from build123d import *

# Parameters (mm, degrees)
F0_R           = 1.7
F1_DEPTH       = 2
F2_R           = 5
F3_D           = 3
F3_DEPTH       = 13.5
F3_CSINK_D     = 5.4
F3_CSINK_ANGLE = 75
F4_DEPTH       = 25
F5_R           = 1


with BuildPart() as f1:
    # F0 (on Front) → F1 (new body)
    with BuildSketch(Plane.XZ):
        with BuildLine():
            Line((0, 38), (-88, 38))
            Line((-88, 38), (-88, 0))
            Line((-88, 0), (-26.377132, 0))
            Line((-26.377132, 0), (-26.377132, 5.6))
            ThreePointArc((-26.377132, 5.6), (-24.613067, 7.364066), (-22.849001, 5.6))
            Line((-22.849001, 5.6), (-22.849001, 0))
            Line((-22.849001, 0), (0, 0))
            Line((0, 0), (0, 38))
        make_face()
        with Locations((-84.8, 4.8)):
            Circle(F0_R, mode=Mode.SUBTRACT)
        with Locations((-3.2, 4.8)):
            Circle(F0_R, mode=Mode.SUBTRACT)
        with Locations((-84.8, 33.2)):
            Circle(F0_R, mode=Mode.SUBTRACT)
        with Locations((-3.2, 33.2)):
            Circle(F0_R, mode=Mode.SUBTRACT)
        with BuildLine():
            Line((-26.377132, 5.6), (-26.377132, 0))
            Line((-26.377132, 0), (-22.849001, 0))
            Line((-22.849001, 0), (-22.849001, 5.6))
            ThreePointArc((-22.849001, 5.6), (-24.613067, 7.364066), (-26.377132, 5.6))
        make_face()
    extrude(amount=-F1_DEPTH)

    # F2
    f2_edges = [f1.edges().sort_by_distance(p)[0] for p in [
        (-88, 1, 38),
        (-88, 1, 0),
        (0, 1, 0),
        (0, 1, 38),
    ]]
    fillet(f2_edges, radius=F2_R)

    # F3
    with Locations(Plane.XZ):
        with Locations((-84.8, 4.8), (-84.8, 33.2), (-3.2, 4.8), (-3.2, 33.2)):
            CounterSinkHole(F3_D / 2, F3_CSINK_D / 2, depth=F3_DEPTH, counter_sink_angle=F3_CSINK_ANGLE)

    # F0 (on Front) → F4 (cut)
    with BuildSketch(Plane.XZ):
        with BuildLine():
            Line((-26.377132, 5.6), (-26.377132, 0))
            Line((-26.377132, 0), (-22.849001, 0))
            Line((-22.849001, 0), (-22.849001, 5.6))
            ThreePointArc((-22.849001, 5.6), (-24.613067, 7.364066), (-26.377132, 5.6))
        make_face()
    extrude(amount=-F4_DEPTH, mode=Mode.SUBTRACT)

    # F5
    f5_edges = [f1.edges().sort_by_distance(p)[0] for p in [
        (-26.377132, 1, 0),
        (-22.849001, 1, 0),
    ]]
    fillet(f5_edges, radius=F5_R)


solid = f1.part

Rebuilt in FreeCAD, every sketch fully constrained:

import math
import FreeCAD as App
import Part
import Sketcher
from FreeCAD import Vector


def edges_at(feature, points):
    """Names of the edges that pass closest to the given points."""
    edges = feature.Shape.Edges
    near = lambda p: min(range(len(edges)), key=lambda i: edges[i].distToShape(Part.Vertex(*p))[0])
    return sorted({f"Edge{near(p) + 1}" for p in points})

doc = App.newDocument("Part")
params = doc.addObject("Spreadsheet::Sheet", "Params")
for row, (alias, value) in enumerate([
    ("sketch1_diameter", "3.4 mm"),
    ("sketch1_width", "88 mm"),
    ("sketch1_height", "38 mm"),
    ("pad1_length", "2 mm"),
    ("fillet_radius", "5 mm"),
    ("sketch2_diameter", "3 mm"),
    ("hole_diameter", "3 mm"),
    ("hole_depth", "13.5 mm"),
    ("hole_csink_diameter", "5.4 mm"),
    ("sketch3_height", "5.6 mm"),
    ("pocket1_length", "25 mm"),
    ("fillet2_radius", "1 mm"),
], start=1):
    params.set(f"A{row}", alias)
    params.set(f"B{row}", "=" + value)
    params.setAlias(f"B{row}", alias)

body = doc.addObject("PartDesign::Body", "Body")

sketch1 = body.newObject("Sketcher::SketchObject", "Sketch")
sketch1.AttachmentSupport = (doc.getObject("XZ_Plane"), [""])
sketch1.MapMode = "FlatFace"
sketch1.addGeometry([
    Part.LineSegment(Vector(0, 38, 0), Vector(-88, 38, 0)),
    Part.LineSegment(Vector(-88, 38, 0), Vector(-88, 0, 0)),
    Part.LineSegment(Vector(-88, 0, 0), Vector(0, 0, 0)),
    Part.LineSegment(Vector(0, 0, 0), Vector(0, 38, 0)),
    Part.Circle(Vector(-84.8, 4.8, 0), Vector(0, 0, 1), 1.7),
    Part.Circle(Vector(-3.2, 4.8, 0), Vector(0, 0, 1), 1.7),
    Part.Circle(Vector(-84.8, 33.2, 0), Vector(0, 0, 1), 1.7),
    Part.Circle(Vector(-3.2, 33.2, 0), Vector(0, 0, 1), 1.7),
], False)
sketch1.addConstraint([
    Sketcher.Constraint("Coincident", 0, 2, 1, 1),
    Sketcher.Constraint("Coincident", 1, 2, 2, 1),
    Sketcher.Constraint("Coincident", 2, 2, 3, 1),
    Sketcher.Constraint("Coincident", 3, 2, 0, 1),
    Sketcher.Constraint("Horizontal", 0),
    Sketcher.Constraint("Vertical", 1),
    Sketcher.Constraint("Horizontal", 2),
    Sketcher.Constraint("Vertical", 3),
    Sketcher.Constraint("Coincident", 2, 2, -1, 1),
    Sketcher.Constraint("Equal", 4, 5),
    Sketcher.Constraint("Equal", 5, 6),
    Sketcher.Constraint("Equal", 6, 7),
    Sketcher.Constraint("Horizontal", 4, 3, 5, 3),
    Sketcher.Constraint("Horizontal", 6, 3, 7, 3),
    Sketcher.Constraint("Vertical", 4, 3, 6, 3),
    Sketcher.Constraint("Vertical", 5, 3, 7, 3),
    Sketcher.Constraint("Diameter", 4, 3.4),
    Sketcher.Constraint("DistanceX", 0, 2, 0, 1, 88.0),
    Sketcher.Constraint("DistanceY", 1, 2, 1, 1, 38.0),
    Sketcher.Constraint("DistanceX", 4, 3, -1, 1, 84.8),
    Sketcher.Constraint("DistanceY", -1, 1, 4, 3, 4.8),
    Sketcher.Constraint("DistanceX", 5, 3, -1, 1, 3.2),
    Sketcher.Constraint("DistanceY", -1, 1, 6, 3, 33.2),
])
sketch1.setExpression("Constraints[16]", "Params.sketch1_diameter")
sketch1.setExpression("Constraints[17]", "Params.sketch1_width")
sketch1.setExpression("Constraints[18]", "Params.sketch1_height")
pad1 = body.newObject("PartDesign::Pad", "Pad")
pad1.Profile = sketch1
pad1.setExpression("Length", "Params.pad1_length")
pad1.Reversed = True
doc.recompute()

fillet = body.newObject("PartDesign::Fillet", "Fillet")
fillet.Base = (pad1, edges_at(pad1, [
    (-88, 1, 38),
    (-88, 1, 0),
    (0, 1, 0),
    (0, 1, 38),
]))
fillet.setExpression("Radius", "Params.fillet_radius")

sketch2 = body.newObject("Sketcher::SketchObject", "Sketch001")
sketch2.AttachmentSupport = (doc.getObject("XZ_Plane"), [""])
sketch2.MapMode = "FlatFace"
sketch2.addGeometry([
    Part.Circle(Vector(-84.8, 4.8, 0), Vector(0, 0, 1), 1.5),
    Part.Circle(Vector(-84.8, 33.2, 0), Vector(0, 0, 1), 1.5),
    Part.Circle(Vector(-3.2, 4.8, 0), Vector(0, 0, 1), 1.5),
    Part.Circle(Vector(-3.2, 33.2, 0), Vector(0, 0, 1), 1.5),
], False)
sketch2.addConstraint([
    Sketcher.Constraint("Equal", 0, 1),
    Sketcher.Constraint("Equal", 1, 2),
    Sketcher.Constraint("Equal", 2, 3),
    Sketcher.Constraint("Horizontal", 0, 3, 2, 3),
    Sketcher.Constraint("Horizontal", 1, 3, 3, 3),
    Sketcher.Constraint("Vertical", 0, 3, 1, 3),
    Sketcher.Constraint("Vertical", 2, 3, 3, 3),
    Sketcher.Constraint("Diameter", 0, 3.0),
    Sketcher.Constraint("DistanceX", 0, 3, -1, 1, 84.8),
    Sketcher.Constraint("DistanceY", -1, 1, 0, 3, 4.8),
    Sketcher.Constraint("DistanceY", -1, 1, 1, 3, 33.2),
    Sketcher.Constraint("DistanceX", 2, 3, -1, 1, 3.2),
])
sketch2.setExpression("Constraints[7]", "Params.sketch2_diameter")
doc.recompute()
hole = body.newObject("PartDesign::Hole", "Hole")
hole.Profile = sketch2
hole.ThreadType = "None"
hole.setExpression("Diameter", "Params.hole_diameter")
hole.DepthType = "Dimension"
hole.setExpression("Depth", "Params.hole_depth")
hole.DrillPoint = "Flat"
hole.HoleCutType = "Countersink"
hole.setExpression("HoleCutDiameter", "Params.hole_csink_diameter")
hole.HoleCutCountersinkAngle = 75

sketch3 = body.newObject("Sketcher::SketchObject", "Sketch002")
sketch3.AttachmentSupport = (doc.getObject("XZ_Plane"), [""])
sketch3.MapMode = "FlatFace"
sketch3.addGeometry([
    Part.LineSegment(Vector(-26.4, 5.6, 0), Vector(-26.4, 0, 0)),
    Part.LineSegment(Vector(-26.4, 0, 0), Vector(-22.8, 0, 0)),
    Part.LineSegment(Vector(-22.8, 0, 0), Vector(-22.8, 5.6, 0)),
    Part.ArcOfCircle(Part.Circle(Vector(-24.6, 5.6, 0), Vector(0, 0, 1), 1.8), math.radians(0), math.radians(180)),
], False)
sketch3.addConstraint([
    Sketcher.Constraint("Coincident", 0, 2, 1, 1),
    Sketcher.Constraint("Coincident", 1, 2, 2, 1),
    Sketcher.Constraint("Tangent", 2, 2, 3, 1),
    Sketcher.Constraint("Tangent", 3, 2, 0, 1),
    Sketcher.Constraint("Vertical", 0),
    Sketcher.Constraint("Horizontal", 1),
    Sketcher.Constraint("Vertical", 2),
    Sketcher.Constraint("PointOnObject", 0, 2, -1),
    Sketcher.Constraint("DistanceY", 0, 2, 0, 1, 5.6),
    Sketcher.Constraint("DistanceX", 1, 2, -1, 1, 22.849001),
    Sketcher.Constraint("Radius", 3, 1.764066),
])
sketch3.setExpression("Constraints[8]", "Params.sketch3_height")
pocket1 = body.newObject("PartDesign::Pocket", "Pocket")
pocket1.Profile = sketch3
pocket1.setExpression("Length", "Params.pocket1_length")
doc.recompute()

fillet2 = body.newObject("PartDesign::Fillet", "Fillet001")
fillet2.Base = (pocket1, edges_at(pocket1, [(-26.377, 1, 0), (-22.849, 1, 0)]))
fillet2.setExpression("Radius", "Params.fillet2_radius")

doc.recompute()
